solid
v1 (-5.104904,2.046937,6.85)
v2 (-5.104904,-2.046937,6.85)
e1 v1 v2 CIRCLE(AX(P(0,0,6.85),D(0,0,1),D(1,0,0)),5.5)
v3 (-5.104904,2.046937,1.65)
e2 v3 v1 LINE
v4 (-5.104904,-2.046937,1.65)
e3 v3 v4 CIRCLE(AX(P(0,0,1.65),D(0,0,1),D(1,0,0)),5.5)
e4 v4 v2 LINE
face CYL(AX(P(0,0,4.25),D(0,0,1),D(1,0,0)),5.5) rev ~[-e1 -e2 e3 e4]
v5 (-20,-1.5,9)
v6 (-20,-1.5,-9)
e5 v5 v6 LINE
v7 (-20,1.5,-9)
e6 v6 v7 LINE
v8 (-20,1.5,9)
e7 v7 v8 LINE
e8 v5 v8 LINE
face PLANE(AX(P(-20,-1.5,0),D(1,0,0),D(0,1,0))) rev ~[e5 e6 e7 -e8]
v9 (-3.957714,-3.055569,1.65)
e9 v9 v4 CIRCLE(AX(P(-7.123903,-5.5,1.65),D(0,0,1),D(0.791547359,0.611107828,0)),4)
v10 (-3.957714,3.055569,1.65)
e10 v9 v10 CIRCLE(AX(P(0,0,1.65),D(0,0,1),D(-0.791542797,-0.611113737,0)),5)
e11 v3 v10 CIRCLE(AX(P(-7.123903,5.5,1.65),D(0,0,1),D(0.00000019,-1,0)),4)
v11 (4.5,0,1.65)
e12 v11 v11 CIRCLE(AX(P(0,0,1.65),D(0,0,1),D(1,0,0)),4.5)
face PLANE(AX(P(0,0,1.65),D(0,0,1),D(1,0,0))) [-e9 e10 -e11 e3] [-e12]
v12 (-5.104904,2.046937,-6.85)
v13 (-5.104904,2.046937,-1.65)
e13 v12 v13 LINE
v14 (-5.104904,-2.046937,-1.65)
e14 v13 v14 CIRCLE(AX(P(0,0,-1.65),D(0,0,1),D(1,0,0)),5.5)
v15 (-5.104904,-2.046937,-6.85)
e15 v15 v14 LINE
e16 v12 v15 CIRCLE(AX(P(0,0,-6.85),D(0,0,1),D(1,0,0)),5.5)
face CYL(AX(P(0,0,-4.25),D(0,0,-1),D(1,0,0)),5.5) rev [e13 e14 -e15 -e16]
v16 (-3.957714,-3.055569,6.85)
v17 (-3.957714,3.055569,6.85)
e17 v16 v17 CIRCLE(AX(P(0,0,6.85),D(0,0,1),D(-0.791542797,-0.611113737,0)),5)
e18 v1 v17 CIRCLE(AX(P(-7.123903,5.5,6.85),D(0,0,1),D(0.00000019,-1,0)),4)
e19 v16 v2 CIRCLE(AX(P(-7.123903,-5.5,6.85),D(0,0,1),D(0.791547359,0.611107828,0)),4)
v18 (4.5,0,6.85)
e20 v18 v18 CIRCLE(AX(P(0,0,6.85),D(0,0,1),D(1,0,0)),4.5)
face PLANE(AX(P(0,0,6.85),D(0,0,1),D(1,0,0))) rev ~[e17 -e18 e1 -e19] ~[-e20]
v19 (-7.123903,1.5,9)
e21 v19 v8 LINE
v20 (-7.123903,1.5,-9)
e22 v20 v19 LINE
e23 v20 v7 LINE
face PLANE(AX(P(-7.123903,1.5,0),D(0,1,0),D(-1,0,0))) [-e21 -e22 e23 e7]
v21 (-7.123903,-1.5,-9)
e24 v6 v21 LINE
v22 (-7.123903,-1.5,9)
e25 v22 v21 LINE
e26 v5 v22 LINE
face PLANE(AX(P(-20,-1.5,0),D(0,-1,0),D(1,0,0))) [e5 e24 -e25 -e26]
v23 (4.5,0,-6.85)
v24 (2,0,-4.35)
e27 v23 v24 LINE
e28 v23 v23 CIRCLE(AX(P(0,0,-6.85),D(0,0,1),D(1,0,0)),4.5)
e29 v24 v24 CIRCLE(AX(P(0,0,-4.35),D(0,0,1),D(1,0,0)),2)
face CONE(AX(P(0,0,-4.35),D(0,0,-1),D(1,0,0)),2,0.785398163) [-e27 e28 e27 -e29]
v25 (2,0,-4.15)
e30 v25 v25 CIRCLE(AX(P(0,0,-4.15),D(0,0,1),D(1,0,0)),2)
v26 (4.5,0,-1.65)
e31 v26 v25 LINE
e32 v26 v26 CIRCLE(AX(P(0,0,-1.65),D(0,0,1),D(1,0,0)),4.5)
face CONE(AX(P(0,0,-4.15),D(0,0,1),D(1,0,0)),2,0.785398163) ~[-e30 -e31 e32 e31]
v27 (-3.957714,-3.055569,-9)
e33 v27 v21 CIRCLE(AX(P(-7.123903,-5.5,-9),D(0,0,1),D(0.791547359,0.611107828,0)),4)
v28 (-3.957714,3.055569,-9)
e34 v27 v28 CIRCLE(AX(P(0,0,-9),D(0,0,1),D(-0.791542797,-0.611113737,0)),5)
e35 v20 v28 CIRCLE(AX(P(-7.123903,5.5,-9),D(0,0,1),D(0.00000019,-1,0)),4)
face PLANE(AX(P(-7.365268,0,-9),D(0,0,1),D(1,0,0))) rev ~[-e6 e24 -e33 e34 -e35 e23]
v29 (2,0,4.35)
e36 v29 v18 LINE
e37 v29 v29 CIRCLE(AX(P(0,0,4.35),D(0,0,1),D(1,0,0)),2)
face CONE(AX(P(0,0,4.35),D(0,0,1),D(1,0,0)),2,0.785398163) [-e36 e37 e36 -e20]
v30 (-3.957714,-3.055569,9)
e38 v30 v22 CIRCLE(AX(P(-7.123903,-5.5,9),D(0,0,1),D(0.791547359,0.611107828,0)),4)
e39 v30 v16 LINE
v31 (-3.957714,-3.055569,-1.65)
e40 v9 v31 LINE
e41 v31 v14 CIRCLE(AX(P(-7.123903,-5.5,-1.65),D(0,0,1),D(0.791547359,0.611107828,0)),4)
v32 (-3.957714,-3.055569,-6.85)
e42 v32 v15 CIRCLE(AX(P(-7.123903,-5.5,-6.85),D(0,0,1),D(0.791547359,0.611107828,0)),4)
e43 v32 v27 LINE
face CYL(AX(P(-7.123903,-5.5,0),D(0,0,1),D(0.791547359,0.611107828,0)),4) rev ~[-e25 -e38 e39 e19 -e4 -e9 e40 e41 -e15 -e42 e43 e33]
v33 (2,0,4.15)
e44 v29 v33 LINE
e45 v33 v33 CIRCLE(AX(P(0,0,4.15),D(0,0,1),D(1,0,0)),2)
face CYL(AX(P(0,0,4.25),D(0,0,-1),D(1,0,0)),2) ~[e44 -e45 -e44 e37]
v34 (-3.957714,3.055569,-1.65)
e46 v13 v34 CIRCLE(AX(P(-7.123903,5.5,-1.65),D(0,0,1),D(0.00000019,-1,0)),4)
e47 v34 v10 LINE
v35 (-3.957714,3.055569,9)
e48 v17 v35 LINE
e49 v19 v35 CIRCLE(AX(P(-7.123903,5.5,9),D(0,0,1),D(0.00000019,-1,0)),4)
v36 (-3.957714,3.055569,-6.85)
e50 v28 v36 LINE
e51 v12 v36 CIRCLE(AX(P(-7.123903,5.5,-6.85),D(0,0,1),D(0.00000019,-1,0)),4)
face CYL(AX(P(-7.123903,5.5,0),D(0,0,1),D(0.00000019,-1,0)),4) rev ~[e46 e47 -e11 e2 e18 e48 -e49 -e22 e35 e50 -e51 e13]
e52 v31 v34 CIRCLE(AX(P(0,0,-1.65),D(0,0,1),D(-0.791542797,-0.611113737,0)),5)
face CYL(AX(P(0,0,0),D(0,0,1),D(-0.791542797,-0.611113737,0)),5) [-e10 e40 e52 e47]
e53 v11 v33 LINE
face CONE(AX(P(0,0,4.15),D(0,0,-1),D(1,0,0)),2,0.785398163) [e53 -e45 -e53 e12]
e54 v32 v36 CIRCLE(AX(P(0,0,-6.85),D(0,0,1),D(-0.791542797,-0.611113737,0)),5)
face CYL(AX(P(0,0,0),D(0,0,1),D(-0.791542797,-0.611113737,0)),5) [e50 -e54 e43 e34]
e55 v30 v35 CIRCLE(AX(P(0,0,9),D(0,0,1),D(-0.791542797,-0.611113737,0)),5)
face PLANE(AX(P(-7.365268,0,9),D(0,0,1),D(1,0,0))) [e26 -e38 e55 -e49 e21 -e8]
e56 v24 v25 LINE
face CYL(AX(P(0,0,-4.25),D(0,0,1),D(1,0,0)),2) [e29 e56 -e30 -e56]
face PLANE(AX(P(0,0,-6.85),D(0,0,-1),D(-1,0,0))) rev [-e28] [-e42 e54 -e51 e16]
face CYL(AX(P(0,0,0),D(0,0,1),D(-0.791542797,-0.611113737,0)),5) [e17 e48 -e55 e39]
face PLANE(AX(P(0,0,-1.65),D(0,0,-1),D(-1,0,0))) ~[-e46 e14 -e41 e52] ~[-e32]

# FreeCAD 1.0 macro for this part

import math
import FreeCAD as App
import Part
import Sketcher


def edges_at(feature, points):
    """Names of the edges that pass closest to the given points."""
    edges = feature.Shape.Edges
    near = lambda p: min(range(len(edges)), key=lambda i: edges[i].distToShape(Part.Vertex(*p))[0])
    return sorted({f"Edge{near(p) + 1}" for p in points})

doc = App.newDocument("Part")
body = doc.addObject("PartDesign::Body", "Body")

# Sketch on XY plane
sketch1 = body.newObject("Sketcher::SketchObject", "Sketch")
sketch1.AttachmentSupport = (doc.getObject("XY_Plane"), [""])
sketch1.MapMode = "FlatFace"
sketch1.addGeometry(Part.ArcOfCircle(Part.Circle(App.Vector(0, 0, 0), App.Vector(0, 0, 1), 5), math.radians(-142), math.radians(142)), False)
sketch1.addGeometry(Part.ArcOfCircle(Part.Circle(App.Vector(-7.1, 5.5, 0), App.Vector(0, 0, 1), 4), math.radians(-90), math.radians(-38)), False)
sketch1.addGeometry(Part.LineSegment(App.Vector(-7.1, 1.5, 0), App.Vector(-20, 1.5, 0)), False)
sketch1.addGeometry(Part.LineSegment(App.Vector(-20, 1.5, 0), App.Vector(-20, -1.5, 0)), False)
sketch1.addGeometry(Part.LineSegment(App.Vector(-20, -1.5, 0), App.Vector(-7.1, -1.5, 0)), False)
sketch1.addGeometry(Part.ArcOfCircle(Part.Circle(App.Vector(-7.1, -5.5, 0), App.Vector(0, 0, 1), 4), math.radians(38), math.radians(90)), False)
sketch1.addConstraint(Sketcher.Constraint("Coincident", 0, 2, 1, 2))
sketch1.addConstraint(Sketcher.Constraint("Tangent", 1, 1, 2, 1))
sketch1.addConstraint(Sketcher.Constraint("Coincident", 2, 2, 3, 1))
sketch1.addConstraint(Sketcher.Constraint("Coincident", 3, 2, 4, 1))
sketch1.addConstraint(Sketcher.Constraint("Tangent", 4, 2, 5, 2))
sketch1.addConstraint(Sketcher.Constraint("Coincident", 5, 1, 0, 1))
sketch1.addConstraint(Sketcher.Constraint("Horizontal", 2))
sketch1.addConstraint(Sketcher.Constraint("Vertical", 3))
sketch1.addConstraint(Sketcher.Constraint("Horizontal", 4))
sketch1.addConstraint(Sketcher.Constraint("Coincident", 0, 3, -1, 1))
sketch1.addConstraint(Sketcher.Constraint("Equal", 1, 5))
sketch1.addConstraint(Sketcher.Constraint("Vertical", 1, 3, 5, 3))
sketch1.addConstraint(Sketcher.Constraint("Vertical", 0, 2, 5, 1))
sketch1.addConstraint(Sketcher.Constraint("Radius", 0, 5.0))
sketch1.addConstraint(Sketcher.Constraint("Radius", 1, 4.0))
sketch1.addConstraint(Sketcher.Constraint("DistanceY", 3, 2, 3, 1, 3.0))
sketch1.addConstraint(Sketcher.Constraint("DistanceX", 2, 2, -1, 1, 20.0))
sketch1.addConstraint(Sketcher.Constraint("DistanceY", -1, 1, 0, 2, 3.055569))
pad1 = body.newObject("PartDesign::Pad", "Pad")
pad1.Profile = sketch1
pad1.Length = 18
pad1.Midplane = True

# Sketch on XY plane
sketch2 = body.newObject("Sketcher::SketchObject", "Sketch001")
sketch2.AttachmentSupport = (doc.getObject("XY_Plane"), [""])
sketch2.MapMode = "FlatFace"
sketch2.AttachmentOffset = App.Placement(App.Vector(0, 0, 4.25), App.Rotation())
sketch2.addGeometry(Part.Circle(App.Vector(0, 0, 0), App.Vector(0, 0, 1), 5.5), False)
sketch2.addGeometry(Part.Circle(App.Vector(0, 0, 0), App.Vector(0, 0, 1), 2), False)
sketch2.addConstraint(Sketcher.Constraint("Coincident", 0, 3, -1, 1))
sketch2.addConstraint(Sketcher.Constraint("Coincident", 1, 3, -1, 1))
sketch2.addConstraint(Sketcher.Constraint("Diameter", 0, 11.0))
sketch2.addConstraint(Sketcher.Constraint("Diameter", 1, 4.0))
pocket1 = body.newObject("PartDesign::Pocket", "Pocket")
pocket1.Profile = sketch2
pocket1.Length = 5.2
pocket1.Midplane = True
doc.recompute()

mirrored = body.newObject("PartDesign::Mirrored", "Mirrored")
mirrored.Originals = [pocket1]
mirrored.MirrorPlane = (doc.getObject("XY_Plane"), [""])
body.Tip = mirrored
doc.recompute()

chamfer = body.newObject("PartDesign::Chamfer", "Chamfer")
chamfer.Base = (mirrored, edges_at(mirrored, [
    (-2, 0, -6.85),
    (-2, 0, 1.65),
    (-2, 0, 6.85),
    (-2, 0, -1.65),
]))
chamfer.Size = 2.5

doc.recompute()
